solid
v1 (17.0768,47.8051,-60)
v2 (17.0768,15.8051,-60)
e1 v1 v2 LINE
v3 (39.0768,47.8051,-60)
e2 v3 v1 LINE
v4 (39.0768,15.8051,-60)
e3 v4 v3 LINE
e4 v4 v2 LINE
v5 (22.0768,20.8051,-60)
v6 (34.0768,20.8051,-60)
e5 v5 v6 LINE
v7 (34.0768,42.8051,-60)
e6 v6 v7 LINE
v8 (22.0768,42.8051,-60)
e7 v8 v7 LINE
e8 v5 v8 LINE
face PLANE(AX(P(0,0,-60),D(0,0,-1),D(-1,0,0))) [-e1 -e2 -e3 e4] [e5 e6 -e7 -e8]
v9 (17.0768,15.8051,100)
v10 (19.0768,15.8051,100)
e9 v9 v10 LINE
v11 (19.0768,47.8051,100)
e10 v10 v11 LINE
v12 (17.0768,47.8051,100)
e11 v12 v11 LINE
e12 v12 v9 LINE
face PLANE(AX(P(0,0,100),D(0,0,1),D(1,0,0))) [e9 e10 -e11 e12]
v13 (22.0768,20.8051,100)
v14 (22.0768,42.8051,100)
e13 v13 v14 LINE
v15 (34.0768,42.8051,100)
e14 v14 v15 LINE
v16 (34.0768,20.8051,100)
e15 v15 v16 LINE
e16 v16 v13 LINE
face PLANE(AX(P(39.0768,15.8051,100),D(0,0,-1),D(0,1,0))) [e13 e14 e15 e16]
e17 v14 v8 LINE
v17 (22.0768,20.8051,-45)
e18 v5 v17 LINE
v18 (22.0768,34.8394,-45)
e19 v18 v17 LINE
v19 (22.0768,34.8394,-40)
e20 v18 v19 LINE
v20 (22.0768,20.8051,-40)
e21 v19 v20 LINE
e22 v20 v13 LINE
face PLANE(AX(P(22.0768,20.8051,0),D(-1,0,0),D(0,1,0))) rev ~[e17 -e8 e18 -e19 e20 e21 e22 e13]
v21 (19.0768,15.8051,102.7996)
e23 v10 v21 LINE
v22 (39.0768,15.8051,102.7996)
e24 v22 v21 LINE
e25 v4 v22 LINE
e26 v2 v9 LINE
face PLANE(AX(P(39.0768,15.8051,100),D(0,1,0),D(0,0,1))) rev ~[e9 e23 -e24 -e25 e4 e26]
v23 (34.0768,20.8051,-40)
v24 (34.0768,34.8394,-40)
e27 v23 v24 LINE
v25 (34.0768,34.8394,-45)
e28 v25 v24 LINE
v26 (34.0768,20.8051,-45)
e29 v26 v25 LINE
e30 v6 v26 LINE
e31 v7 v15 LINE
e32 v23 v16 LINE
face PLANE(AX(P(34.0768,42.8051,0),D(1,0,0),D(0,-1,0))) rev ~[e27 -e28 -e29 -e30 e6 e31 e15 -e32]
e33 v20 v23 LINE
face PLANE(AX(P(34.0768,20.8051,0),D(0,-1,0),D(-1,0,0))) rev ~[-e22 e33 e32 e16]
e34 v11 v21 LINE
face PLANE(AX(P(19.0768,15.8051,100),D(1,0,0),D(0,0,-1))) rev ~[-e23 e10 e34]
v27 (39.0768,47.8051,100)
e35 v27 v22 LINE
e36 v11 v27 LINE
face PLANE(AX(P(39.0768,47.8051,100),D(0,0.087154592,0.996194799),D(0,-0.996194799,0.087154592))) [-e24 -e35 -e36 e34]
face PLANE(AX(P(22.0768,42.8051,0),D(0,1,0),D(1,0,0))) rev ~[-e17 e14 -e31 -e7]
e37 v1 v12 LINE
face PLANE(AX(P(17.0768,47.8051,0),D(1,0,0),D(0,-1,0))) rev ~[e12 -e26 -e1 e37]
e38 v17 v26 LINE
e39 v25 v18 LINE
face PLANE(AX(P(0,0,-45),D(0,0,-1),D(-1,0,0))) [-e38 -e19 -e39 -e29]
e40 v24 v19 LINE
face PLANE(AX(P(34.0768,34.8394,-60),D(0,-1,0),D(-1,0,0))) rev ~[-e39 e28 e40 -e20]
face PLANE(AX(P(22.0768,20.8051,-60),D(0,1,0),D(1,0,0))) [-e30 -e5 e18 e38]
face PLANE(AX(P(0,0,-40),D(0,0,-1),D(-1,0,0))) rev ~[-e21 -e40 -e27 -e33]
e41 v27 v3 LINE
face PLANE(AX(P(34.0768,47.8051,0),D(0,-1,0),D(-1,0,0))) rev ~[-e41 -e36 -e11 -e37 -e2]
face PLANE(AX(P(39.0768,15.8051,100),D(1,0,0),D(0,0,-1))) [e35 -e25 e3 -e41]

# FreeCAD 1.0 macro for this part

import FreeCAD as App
import Part
import Sketcher
from FreeCAD import Vector
Q = App.Units.Quantity


def add_polygon(sketch, points):
    """Adds a closed chain of lines whose ends are joined by coincident constraints."""
    first, n = sketch.GeometryCount, len(points)
    for a, b in zip(points, points[1:] + points[:1]):
        sketch.addGeometry(Part.LineSegment(App.Vector(*a, 0), App.Vector(*b, 0)), False)
    for i in range(n):
        sketch.addConstraint(Sketcher.Constraint("Coincident", first + i, 2, first + (i + 1) % n, 1))

doc = App.newDocument("Part")
params = doc.addObject("Spreadsheet::Sheet", "Params")
for row, (alias, value) in enumerate([
    ("sketch1_width", "22 mm"),
    ("sketch1_width2", "12 mm"),
    ("pad1_length", "100 mm"),
    ("pad1_length2", "60 mm"),
    ("sketch2_width", "32 mm"),
    ("pad2_length", "20 mm"),
    ("sketch3_width", "12 mm"),
    ("pad3_length", "20 mm"),
    ("sketch4_width", "12 mm"),
    ("pocket1_length", "15 mm"),
], start=1):
    params.set(f"A{row}", alias)
    params.set(f"B{row}", "=" + value)
    params.setAlias(f"B{row}", alias)

body = doc.addObject("PartDesign::Body", "Body")

# Sketch on XY plane
sketch1 = body.newObject("Sketcher::SketchObject", "Sketch")
sketch1.AttachmentSupport = (doc.getObject("XY_Plane"), [""])
sketch1.MapMode = "FlatFace"
add_polygon(sketch1, [(17.0768, 47.8051), (17.0768, 15.8051), (39.0768, 15.8051), (39.0768, 47.8051)])  # lines 0-3
add_polygon(sketch1, [(22.0768, 42.8051), (34.0768, 42.8051), (34.0768, 20.8051), (22.0768, 20.8051)])  # lines 4-7
sketch1.addConstraint([
    Sketcher.Constraint("Vertical", 0),
    Sketcher.Constraint("Horizontal", 1),
    Sketcher.Constraint("Vertical", 2),
    Sketcher.Constraint("Horizontal", 3),
    Sketcher.Constraint("Horizontal", 4),
    Sketcher.Constraint("Vertical", 5),
    Sketcher.Constraint("Horizontal", 6),
    Sketcher.Constraint("Vertical", 7),
    Sketcher.Constraint("Equal", 3, 5),
    Sketcher.Constraint("DistanceX", 1, 1, 1, 2, Q("22 mm")),
    Sketcher.Constraint("DistanceX", 4, 1, 4, 2, Q("12 mm")),
    Sketcher.Constraint("DistanceX", 4, 2, 2, 2, Q("5 mm")),
    Sketcher.Constraint("DistanceY", 4, 2, 2, 2, Q("5 mm")),
    Sketcher.Constraint("DistanceY", 1, 2, 5, 2, Q("5 mm")),
    Sketcher.Constraint("DistanceY", -1, 1, 0, 2, Q("15.805 mm")),
    Sketcher.Constraint("DistanceX", -1, 1, 0, 2, Q("17.0768 mm")),
])
sketch1.setExpression("Constraints[17]", "Params.sketch1_width")
sketch1.setExpression("Constraints[18]", "Params.sketch1_width2")
pad1 = body.newObject("PartDesign::Pad", "Pad")
pad1.Profile = sketch1
pad1.Type = "TwoLengths"
pad1.setExpression("Length", "Params.pad1_length")
pad1.setExpression("Length2", "Params.pad1_length2")

# Sketch on YZ plane
sketch2 = body.newObject("Sketcher::SketchObject", "Sketch001")
sketch2.AttachmentSupport = (doc.getObject("YZ_Plane"), [""])
sketch2.MapMode = "FlatFace"
sketch2.AttachmentOffset = App.Placement(Vector(0, 0, 39.0768), App.Rotation())
add_polygon(sketch2, [(15.8051, 102.7996), (15.8051, 100), (47.8051, 100)])  # lines 0-2
sketch2.addConstraint([
    Sketcher.Constraint("Vertical", 0),
    Sketcher.Constraint("Horizontal", 1),
    Sketcher.Constraint("DistanceX", 1, 1, 1, 2, Q("32 mm")),
    Sketcher.Constraint("Angle", 2, Q("175 deg")),
    Sketcher.Constraint("DistanceY", -1, 1, 0, 2, Q("100 mm")),
    Sketcher.Constraint("DistanceX", -1, 1, 0, 2, Q("15.805 mm")),
])
sketch2.setExpression("Constraints[5]", "Params.sketch2_width")
pad2 = body.newObject("PartDesign::Pad", "Pad001")
pad2.Profile = sketch2
pad2.setExpression("Length", "Params.pad2_length")
pad2.Reversed = True

# Sketch on XY plane
sketch3 = body.newObject("Sketcher::SketchObject", "Sketch002")
sketch3.AttachmentSupport = (doc.getObject("XY_Plane"), [""])
sketch3.MapMode = "FlatFace"
sketch3.AttachmentOffset = App.Placement(Vector(0, 0, -60), App.Rotation())
add_polygon(sketch3, [(34.0768, 20.8051), (22.0768, 20.8051), (22.0768, 34.8394), (34.0768, 34.8394)])  # lines 0-3
sketch3.addConstraint([
    Sketcher.Constraint("Horizontal", 0),
    Sketcher.Constraint("Vertical", 1),
    Sketcher.Constraint("Horizontal", 2),
    Sketcher.Constraint("Vertical", 3),
    Sketcher.Constraint("DistanceX", 0, 2, 0, 1, Q("12 mm")),
    Sketcher.Constraint("DistanceY", 1, 1, 1, 2, Q("14.0343 mm")),
    Sketcher.Constraint("DistanceY", -1, 1, 0, 2, Q("20.805 mm")),
    Sketcher.Constraint("DistanceX", -1, 1, 0, 2, Q("22.0768 mm")),
])
sketch3.setExpression("Constraints[8]", "Params.sketch3_width")
pad3 = body.newObject("PartDesign::Pad", "Pad002")
pad3.Profile = sketch3
pad3.setExpression("Length", "Params.pad3_length")

# Sketch on XY plane
sketch4 = body.newObject("Sketcher::SketchObject", "Sketch003")
sketch4.AttachmentSupport = (doc.getObject("XY_Plane"), [""])
sketch4.MapMode = "FlatFace"
sketch4.AttachmentOffset = App.Placement(Vector(0, 0, -60), App.Rotation())
add_polygon(sketch4, [(34.0768, 20.8051), (22.0768, 20.8051), (22.0768, 34.8394), (34.0768, 34.8394)])  # lines 0-3
sketch4.addConstraint([
    Sketcher.Constraint("Horizontal", 0),
    Sketcher.Constraint("Vertical", 1),
    Sketcher.Constraint("Horizontal", 2),
    Sketcher.Constraint("Vertical", 3),
    Sketcher.Constraint("DistanceX", 0, 2, 0, 1, Q("12 mm")),
    Sketcher.Constraint("DistanceY", 1, 1, 1, 2, Q("14.0343 mm")),
    Sketcher.Constraint("DistanceY", -1, 1, 0, 2, Q("20.805 mm")),
    Sketcher.Constraint("DistanceX", -1, 1, 0, 2, Q("22.0768 mm")),
])
sketch4.setExpression("Constraints[8]", "Params.sketch4_width")
pocket1 = body.newObject("PartDesign::Pocket", "Pocket")
pocket1.Profile = sketch4
pocket1.setExpression("Length", "Params.pocket1_length")
pocket1.Reversed = True

doc.recompute()
